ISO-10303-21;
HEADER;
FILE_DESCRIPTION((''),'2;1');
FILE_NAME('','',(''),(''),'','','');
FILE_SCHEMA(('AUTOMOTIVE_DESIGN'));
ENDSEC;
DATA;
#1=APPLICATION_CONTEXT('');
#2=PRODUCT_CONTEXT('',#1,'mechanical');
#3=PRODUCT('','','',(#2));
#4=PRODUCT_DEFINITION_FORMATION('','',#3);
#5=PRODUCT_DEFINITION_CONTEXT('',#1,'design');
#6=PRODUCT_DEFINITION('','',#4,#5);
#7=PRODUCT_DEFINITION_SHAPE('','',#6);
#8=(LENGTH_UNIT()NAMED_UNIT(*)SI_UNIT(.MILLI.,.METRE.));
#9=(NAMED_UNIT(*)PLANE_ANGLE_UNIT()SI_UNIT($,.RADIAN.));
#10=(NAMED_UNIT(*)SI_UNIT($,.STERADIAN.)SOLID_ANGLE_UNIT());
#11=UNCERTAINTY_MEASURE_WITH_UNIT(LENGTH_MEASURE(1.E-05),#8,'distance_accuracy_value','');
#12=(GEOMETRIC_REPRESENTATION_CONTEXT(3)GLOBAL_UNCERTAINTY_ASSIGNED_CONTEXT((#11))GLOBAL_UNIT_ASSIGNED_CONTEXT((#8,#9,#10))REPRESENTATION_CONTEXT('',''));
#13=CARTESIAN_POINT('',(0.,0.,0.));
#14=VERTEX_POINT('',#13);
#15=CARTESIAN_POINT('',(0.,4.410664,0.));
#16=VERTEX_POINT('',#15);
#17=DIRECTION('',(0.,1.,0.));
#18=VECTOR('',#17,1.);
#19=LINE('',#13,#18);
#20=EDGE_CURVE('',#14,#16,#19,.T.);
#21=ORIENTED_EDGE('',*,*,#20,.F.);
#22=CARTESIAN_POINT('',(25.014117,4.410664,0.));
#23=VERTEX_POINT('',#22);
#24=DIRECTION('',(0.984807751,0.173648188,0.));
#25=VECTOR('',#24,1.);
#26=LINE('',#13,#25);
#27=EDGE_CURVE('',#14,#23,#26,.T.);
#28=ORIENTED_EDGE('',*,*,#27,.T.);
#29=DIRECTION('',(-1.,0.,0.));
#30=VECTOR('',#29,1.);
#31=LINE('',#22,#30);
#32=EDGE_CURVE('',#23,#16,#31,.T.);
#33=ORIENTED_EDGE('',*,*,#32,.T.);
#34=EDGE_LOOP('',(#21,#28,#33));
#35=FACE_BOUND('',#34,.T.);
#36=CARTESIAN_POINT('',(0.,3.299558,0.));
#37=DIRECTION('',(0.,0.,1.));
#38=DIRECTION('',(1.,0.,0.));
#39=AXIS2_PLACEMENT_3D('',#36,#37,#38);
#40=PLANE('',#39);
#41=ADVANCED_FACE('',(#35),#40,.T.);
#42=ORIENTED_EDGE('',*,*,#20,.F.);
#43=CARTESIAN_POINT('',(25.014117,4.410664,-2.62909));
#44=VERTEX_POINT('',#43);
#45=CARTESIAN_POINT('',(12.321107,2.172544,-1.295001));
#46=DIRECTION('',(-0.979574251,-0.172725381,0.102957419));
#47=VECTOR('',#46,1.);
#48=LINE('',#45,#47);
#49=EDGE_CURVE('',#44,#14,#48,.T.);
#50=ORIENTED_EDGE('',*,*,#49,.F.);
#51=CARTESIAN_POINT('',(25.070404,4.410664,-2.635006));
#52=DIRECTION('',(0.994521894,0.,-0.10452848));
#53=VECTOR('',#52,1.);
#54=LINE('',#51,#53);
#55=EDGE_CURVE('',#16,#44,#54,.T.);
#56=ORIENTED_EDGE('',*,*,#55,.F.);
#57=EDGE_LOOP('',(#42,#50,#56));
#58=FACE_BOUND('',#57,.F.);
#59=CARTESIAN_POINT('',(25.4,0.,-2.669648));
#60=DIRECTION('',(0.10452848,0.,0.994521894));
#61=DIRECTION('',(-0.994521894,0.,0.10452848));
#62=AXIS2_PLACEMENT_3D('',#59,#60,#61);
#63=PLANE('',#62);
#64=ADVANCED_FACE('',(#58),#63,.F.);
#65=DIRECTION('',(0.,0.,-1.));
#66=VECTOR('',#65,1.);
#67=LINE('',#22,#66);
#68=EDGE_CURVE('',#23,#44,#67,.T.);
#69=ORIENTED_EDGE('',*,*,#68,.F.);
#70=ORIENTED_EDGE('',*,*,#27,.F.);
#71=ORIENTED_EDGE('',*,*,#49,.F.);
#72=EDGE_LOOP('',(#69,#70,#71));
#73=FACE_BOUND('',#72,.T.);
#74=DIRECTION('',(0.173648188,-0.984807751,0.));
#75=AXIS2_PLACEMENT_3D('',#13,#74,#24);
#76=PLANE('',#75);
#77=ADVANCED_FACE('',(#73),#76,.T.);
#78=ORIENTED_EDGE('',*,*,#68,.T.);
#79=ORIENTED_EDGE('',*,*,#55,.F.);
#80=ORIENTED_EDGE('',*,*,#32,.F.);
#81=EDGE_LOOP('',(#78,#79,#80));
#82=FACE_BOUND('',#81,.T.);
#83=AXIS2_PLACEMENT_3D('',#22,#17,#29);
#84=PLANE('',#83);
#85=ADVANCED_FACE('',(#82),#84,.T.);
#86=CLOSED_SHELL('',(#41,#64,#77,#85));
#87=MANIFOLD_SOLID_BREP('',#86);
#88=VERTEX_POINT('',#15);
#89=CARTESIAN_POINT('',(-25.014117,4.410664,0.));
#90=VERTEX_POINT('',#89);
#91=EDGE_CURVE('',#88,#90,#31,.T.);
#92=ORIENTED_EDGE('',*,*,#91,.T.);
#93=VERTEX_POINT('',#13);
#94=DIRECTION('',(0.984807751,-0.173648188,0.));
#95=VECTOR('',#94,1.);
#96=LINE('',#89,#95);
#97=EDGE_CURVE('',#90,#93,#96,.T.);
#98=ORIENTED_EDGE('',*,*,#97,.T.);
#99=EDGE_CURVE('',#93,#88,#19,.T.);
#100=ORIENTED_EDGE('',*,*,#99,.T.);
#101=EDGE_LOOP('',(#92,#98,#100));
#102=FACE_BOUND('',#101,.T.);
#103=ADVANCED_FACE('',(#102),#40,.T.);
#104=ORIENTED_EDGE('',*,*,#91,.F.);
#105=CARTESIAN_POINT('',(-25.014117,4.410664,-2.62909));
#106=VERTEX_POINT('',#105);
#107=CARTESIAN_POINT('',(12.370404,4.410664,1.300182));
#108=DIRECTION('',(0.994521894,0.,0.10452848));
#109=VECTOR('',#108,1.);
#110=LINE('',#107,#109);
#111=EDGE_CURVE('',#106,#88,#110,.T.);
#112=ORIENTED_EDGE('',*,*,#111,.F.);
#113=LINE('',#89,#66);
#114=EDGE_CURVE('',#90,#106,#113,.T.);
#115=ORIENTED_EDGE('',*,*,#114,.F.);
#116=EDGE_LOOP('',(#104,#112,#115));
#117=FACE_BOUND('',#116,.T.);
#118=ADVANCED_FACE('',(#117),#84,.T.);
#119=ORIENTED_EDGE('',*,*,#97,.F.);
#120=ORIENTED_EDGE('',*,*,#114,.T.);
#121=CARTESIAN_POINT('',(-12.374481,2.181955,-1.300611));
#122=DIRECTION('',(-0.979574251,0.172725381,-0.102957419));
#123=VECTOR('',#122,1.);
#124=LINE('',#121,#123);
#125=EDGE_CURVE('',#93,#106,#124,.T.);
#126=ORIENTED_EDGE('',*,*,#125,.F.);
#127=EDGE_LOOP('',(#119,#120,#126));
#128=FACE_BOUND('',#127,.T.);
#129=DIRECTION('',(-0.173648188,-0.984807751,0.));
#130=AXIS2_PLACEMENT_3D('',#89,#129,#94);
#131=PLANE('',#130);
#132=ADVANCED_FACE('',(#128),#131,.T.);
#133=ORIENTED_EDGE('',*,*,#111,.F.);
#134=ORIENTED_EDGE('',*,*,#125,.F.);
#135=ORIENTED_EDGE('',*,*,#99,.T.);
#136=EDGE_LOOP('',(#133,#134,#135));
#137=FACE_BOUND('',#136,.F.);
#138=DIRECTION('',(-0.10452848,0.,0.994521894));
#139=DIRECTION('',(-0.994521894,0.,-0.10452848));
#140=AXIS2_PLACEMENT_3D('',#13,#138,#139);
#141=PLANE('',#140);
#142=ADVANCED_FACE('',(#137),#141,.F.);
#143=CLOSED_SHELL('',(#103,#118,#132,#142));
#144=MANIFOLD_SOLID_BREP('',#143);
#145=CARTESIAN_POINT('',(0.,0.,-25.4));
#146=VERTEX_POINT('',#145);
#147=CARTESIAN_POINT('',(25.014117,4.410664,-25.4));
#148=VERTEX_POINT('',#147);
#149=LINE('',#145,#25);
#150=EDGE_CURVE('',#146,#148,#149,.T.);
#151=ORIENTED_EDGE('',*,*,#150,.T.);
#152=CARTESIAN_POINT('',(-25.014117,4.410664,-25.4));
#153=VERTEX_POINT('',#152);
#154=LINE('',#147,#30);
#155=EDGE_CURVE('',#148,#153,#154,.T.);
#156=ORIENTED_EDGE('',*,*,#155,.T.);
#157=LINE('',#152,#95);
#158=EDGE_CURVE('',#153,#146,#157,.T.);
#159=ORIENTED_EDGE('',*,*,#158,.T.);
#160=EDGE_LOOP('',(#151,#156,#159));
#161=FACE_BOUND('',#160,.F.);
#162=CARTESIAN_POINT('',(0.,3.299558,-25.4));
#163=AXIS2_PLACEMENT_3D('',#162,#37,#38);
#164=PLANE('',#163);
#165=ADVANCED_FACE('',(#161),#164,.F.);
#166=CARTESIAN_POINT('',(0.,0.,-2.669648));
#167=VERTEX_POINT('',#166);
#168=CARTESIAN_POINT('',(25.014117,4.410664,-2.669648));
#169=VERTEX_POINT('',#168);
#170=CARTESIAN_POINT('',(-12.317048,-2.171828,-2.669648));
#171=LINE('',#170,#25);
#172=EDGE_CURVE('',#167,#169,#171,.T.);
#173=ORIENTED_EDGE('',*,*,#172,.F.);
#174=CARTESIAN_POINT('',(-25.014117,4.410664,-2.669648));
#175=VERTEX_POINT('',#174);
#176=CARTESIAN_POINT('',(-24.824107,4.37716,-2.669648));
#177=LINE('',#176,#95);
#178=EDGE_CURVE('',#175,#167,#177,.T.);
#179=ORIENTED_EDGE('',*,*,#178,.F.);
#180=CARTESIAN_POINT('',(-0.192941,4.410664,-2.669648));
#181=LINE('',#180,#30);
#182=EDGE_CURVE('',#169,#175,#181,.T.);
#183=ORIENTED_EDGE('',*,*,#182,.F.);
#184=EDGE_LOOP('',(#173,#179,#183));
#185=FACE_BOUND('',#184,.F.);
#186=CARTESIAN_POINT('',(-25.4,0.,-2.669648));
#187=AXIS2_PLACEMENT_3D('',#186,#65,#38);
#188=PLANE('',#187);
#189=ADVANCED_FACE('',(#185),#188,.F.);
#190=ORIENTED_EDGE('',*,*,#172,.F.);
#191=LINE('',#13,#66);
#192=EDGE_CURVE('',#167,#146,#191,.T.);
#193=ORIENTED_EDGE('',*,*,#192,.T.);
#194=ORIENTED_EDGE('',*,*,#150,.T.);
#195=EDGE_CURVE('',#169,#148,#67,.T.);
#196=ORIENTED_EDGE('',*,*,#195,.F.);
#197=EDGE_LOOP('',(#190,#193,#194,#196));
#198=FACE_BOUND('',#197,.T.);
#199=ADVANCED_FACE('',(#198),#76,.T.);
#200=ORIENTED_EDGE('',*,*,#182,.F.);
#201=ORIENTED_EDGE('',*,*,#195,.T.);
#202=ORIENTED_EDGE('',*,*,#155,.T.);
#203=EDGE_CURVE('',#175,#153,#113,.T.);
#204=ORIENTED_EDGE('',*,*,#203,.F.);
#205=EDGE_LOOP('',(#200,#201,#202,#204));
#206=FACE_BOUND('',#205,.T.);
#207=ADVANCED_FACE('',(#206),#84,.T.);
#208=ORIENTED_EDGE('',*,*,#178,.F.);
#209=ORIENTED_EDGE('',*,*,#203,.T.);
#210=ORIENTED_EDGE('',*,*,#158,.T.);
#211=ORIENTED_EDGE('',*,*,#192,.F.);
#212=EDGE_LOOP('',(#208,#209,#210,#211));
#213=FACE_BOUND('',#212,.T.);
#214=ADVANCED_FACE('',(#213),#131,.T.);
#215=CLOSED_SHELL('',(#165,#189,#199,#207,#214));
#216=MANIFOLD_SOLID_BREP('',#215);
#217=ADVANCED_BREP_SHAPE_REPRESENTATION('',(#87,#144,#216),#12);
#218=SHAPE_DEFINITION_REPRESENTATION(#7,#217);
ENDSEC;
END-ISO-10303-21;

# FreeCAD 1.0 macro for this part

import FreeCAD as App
import Part
import Sketcher
Q = App.Units.Quantity

doc = App.newDocument("Part")
body = doc.addObject("PartDesign::Body", "Body")
body.AllowCompound = True

# Sketch on XY plane
sketch1 = body.newObject("Sketcher::SketchObject", "Sketch")
sketch1.AttachmentSupport = (doc.getObject("XY_Plane"), [""])
sketch1.MapMode = "FlatFace"
sketch1.addGeometry(Part.LineSegment(App.Vector(-25, 4, 0), App.Vector(0, 0, 0)), False)
sketch1.addGeometry(Part.LineSegment(App.Vector(0, 0, 0), App.Vector(25, 4, 0)), False)
sketch1.addGeometry(Part.LineSegment(App.Vector(25, 4, 0), App.Vector(-25, 4, 0)), False)
sketch1.addConstraint(Sketcher.Constraint("Coincident", 0, 2, 1, 1))
sketch1.addConstraint(Sketcher.Constraint("Coincident", 1, 2, 2, 1))
sketch1.addConstraint(Sketcher.Constraint("Coincident", 2, 2, 0, 1))
sketch1.addConstraint(Sketcher.Constraint("Horizontal", 2))
sketch1.addConstraint(Sketcher.Constraint("Coincident", 0, 2, -1, 1))
sketch1.addConstraint(Sketcher.Constraint("Equal", 0, 1))
sketch1.addConstraint(Sketcher.Constraint("Distance", 0, Q("1 in")))
sketch1.addConstraint(Sketcher.Constraint("Angle", 0, Q("-10.000001 deg")))
pad1 = body.newObject("PartDesign::Pad", "Pad")
pad1.Profile = sketch1
pad1.Length = Q("1 in")
pad1.Reversed = True

# Sketch on XZ plane
sketch2 = body.newObject("Sketcher::SketchObject", "Sketch001")
sketch2.AttachmentSupport = (doc.getObject("XZ_Plane"), [""])
sketch2.MapMode = "FlatFace"
sketch2.addGeometry(Part.LineSegment(App.Vector(25, -3, 0), App.Vector(0, 0, 0)), False)
sketch2.addGeometry(Part.LineSegment(App.Vector(0, 0, 0), App.Vector(-25, -3, 0)), False)
sketch2.addGeometry(Part.LineSegment(App.Vector(-25, -3, 0), App.Vector(25, -3, 0)), False)
sketch2.addConstraint(Sketcher.Constraint("Coincident", 0, 2, 1, 1))
sketch2.addConstraint(Sketcher.Constraint("Coincident", 1, 2, 2, 1))
sketch2.addConstraint(Sketcher.Constraint("Coincident", 2, 2, 0, 1))
sketch2.addConstraint(Sketcher.Constraint("Horizontal", 2))
sketch2.addConstraint(Sketcher.Constraint("Coincident", 0, 2, -1, 1))
sketch2.addConstraint(Sketcher.Constraint("Equal", 0, 1))
sketch2.addConstraint(Sketcher.Constraint("DistanceX", 2, 1, 2, 2, Q("2 in")))
sketch2.addConstraint(Sketcher.Constraint("Angle", 0, Q("173.999999 deg")))
pocket1 = body.newObject("PartDesign::Pocket", "Pocket")
pocket1.Profile = sketch2
pocket1.Length = Q("1 in")

doc.recompute()
